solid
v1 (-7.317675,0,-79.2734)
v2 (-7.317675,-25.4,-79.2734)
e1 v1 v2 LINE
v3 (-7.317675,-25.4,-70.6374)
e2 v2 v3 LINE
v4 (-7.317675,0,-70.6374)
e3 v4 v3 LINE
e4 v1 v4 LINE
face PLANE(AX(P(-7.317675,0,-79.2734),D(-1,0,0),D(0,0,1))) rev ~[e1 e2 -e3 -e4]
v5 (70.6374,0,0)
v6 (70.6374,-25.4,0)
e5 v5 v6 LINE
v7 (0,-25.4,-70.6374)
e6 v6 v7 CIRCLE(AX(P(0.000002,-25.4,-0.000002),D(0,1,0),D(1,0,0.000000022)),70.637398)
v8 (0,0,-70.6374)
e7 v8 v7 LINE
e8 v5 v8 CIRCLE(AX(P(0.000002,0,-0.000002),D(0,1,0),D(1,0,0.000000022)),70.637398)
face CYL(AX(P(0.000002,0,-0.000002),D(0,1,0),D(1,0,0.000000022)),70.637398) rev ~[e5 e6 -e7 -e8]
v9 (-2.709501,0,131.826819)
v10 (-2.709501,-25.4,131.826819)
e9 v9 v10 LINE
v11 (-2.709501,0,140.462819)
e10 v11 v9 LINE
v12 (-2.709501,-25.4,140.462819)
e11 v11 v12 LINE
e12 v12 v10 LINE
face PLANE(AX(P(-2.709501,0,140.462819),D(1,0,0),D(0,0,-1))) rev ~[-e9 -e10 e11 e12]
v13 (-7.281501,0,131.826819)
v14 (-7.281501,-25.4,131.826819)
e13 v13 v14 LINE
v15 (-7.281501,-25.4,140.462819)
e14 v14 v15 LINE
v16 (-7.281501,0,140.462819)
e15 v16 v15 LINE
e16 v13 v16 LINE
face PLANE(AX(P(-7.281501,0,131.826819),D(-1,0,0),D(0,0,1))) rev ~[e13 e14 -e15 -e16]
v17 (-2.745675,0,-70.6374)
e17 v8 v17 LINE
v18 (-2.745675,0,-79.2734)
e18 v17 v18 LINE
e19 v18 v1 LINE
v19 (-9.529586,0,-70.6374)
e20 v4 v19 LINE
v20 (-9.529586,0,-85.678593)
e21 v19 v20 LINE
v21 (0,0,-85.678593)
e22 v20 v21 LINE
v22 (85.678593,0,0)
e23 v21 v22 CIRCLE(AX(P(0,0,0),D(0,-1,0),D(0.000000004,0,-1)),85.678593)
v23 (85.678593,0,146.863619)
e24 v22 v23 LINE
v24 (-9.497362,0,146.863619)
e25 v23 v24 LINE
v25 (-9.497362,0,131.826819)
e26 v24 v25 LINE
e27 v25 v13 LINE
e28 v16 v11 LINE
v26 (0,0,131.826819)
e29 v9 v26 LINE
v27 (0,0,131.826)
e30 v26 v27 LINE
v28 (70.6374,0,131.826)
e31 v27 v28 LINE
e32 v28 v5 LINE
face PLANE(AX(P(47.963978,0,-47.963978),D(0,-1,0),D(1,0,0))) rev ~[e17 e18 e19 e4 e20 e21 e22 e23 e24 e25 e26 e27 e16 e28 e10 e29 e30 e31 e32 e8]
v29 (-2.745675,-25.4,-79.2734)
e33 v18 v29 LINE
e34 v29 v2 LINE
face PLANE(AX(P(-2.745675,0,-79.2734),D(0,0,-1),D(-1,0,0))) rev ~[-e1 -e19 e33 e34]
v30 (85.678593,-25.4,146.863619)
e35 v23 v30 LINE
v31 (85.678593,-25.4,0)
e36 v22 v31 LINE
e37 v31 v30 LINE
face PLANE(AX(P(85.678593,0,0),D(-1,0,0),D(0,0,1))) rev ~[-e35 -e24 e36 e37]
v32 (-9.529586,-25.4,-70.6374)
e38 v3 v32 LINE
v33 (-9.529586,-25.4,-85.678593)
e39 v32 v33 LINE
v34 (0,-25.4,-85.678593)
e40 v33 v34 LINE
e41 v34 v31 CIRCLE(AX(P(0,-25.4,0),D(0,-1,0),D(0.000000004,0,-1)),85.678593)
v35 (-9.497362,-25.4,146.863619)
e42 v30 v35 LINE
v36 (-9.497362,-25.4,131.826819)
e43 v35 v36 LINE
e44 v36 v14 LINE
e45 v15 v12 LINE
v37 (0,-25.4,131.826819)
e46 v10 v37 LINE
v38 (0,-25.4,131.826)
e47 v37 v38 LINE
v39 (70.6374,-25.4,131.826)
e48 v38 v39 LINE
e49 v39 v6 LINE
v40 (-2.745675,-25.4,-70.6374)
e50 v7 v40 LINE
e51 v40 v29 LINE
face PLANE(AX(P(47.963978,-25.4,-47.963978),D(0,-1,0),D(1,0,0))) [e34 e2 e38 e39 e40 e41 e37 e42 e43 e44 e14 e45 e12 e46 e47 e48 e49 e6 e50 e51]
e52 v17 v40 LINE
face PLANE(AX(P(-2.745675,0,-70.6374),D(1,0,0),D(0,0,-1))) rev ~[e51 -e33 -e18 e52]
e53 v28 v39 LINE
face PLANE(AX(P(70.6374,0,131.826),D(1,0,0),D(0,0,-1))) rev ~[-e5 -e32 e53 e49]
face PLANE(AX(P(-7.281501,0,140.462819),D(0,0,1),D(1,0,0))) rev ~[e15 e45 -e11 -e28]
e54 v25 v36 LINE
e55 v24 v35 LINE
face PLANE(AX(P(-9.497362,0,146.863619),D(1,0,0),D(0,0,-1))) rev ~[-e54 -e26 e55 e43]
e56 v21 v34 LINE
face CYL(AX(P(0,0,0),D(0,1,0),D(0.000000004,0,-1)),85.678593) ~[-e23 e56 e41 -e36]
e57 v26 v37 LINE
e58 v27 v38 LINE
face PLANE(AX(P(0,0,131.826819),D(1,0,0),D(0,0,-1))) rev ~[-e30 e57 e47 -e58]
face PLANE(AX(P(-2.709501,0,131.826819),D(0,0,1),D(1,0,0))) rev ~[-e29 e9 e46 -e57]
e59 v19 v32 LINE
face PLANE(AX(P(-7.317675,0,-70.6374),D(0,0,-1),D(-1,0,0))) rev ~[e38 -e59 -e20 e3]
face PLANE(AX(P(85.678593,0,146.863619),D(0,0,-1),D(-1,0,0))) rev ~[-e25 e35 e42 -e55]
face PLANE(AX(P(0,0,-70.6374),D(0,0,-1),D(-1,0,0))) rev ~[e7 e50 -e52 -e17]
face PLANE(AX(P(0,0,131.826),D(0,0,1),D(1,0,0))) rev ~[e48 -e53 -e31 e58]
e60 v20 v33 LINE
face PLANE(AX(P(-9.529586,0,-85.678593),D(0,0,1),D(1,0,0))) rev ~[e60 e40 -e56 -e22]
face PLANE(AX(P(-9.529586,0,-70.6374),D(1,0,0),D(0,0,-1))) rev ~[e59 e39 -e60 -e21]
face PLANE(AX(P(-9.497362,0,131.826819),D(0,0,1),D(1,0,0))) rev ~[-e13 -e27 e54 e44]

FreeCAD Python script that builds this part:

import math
import FreeCAD as App
import Part
import Sketcher

V = App.Vector
Q = App.Units.Quantity

doc = App.newDocument("Part")
params = doc.addObject("Spreadsheet::Sheet", "Params")
for row, (alias, value) in enumerate([
    ("sketch1_radius", "2.7809999 in"),
    ("sketch1_width", "0.18 in"),
    ("sketch1_height", "0.34 in"),
    ("sketch1_height2", "5.19 in"),
    ("sketch1_height3", "0.592 in"),
    ("pad1_length", "1 in"),
], start=1):
    params.set(f"A{row}", alias)
    params.set(f"B{row}", "=" + value)
    params.setAlias(f"B{row}", alias)

body = doc.addObject("PartDesign::Body", "Body")

# Sketch on XZ plane
sketch1 = doc.addObject("Sketcher::SketchObject", "Sketch")
body.addObject(sketch1)
sketch1.AttachmentSupport = (doc.XZ_Plane, [""])
sketch1.MapMode = "FlatFace"
sketch1.addGeometry([
    Part.ArcOfCircle(Part.Circle(V(0, 0, 0), V(0, 0, 1), 85.6786), math.radians(-90), math.radians(0)),  # 0
    Part.LineSegment(V(85.6786, 0, 0), V(85.6786, 146.8636, 0)),  # 1
    Part.LineSegment(V(85.6786, 146.8636, 0), V(-9.4974, 146.8636, 0)),  # 2
    Part.LineSegment(V(-9.4974, 146.8636, 0), V(-9.4974, 131.8268, 0)),  # 3
    Part.LineSegment(V(-9.4974, 131.8268, 0), V(-7.2815, 131.8268, 0)),  # 4
    Part.LineSegment(V(-7.2815, 131.8268, 0), V(-7.2815, 140.4628, 0)),  # 5
    Part.LineSegment(V(-7.2815, 140.4628, 0), V(-2.7095, 140.4628, 0)),  # 6
    Part.LineSegment(V(-2.7095, 140.4628, 0), V(-2.7095, 131.8268, 0)),  # 7
    Part.LineSegment(V(-2.7095, 131.8268, 0), V(0, 131.8268, 0)),  # 8
    Part.LineSegment(V(0, 131.8268, 0), V(0, 131.826, 0)),  # 9
    Part.LineSegment(V(0, 131.826, 0), V(70.6374, 131.826, 0)),  # 10
    Part.LineSegment(V(70.6374, 131.826, 0), V(70.6374, 0, 0)),  # 11
    Part.ArcOfCircle(Part.Circle(V(0, 0, 0), V(0, 0, 1), 70.6374), math.radians(-90), math.radians(0)),  # 12
    Part.LineSegment(V(0, -70.6374, 0), V(-2.7457, -70.6374, 0)),  # 13
    Part.LineSegment(V(-2.7457, -70.6374, 0), V(-2.7457, -79.2734, 0)),  # 14
    Part.LineSegment(V(-2.7457, -79.2734, 0), V(-7.3177, -79.2734, 0)),  # 15
    Part.LineSegment(V(-7.3177, -79.2734, 0), V(-7.3177, -70.6374, 0)),  # 16
    Part.LineSegment(V(-7.3177, -70.6374, 0), V(-9.5296, -70.6374, 0)),  # 17
    Part.LineSegment(V(-9.5296, -70.6374, 0), V(-9.5296, -85.6786, 0)),  # 18
    Part.LineSegment(V(-9.5296, -85.6786, 0), V(0, -85.6786, 0)),  # 19
], False)
sketch1.addConstraint([
    Sketcher.Constraint("Tangent", 0, 2, 1, 1),
    Sketcher.Constraint("Coincident", 1, 2, 2, 1),
    Sketcher.Constraint("Coincident", 2, 2, 3, 1),
    Sketcher.Constraint("Coincident", 3, 2, 4, 1),
    Sketcher.Constraint("Coincident", 4, 2, 5, 1),
    Sketcher.Constraint("Coincident", 5, 2, 6, 1),
    Sketcher.Constraint("Coincident", 6, 2, 7, 1),
    Sketcher.Constraint("Coincident", 7, 2, 8, 1),
    Sketcher.Constraint("Coincident", 8, 2, 9, 1),
    Sketcher.Constraint("Coincident", 9, 2, 10, 1),
    Sketcher.Constraint("Coincident", 10, 2, 11, 1),
    Sketcher.Constraint("Tangent", 11, 2, 12, 2),
    Sketcher.Constraint("Tangent", 12, 1, 13, 1),
    Sketcher.Constraint("Coincident", 13, 2, 14, 1),
    Sketcher.Constraint("Coincident", 14, 2, 15, 1),
    Sketcher.Constraint("Coincident", 15, 2, 16, 1),
    Sketcher.Constraint("Coincident", 16, 2, 17, 1),
    Sketcher.Constraint("Coincident", 17, 2, 18, 1),
    Sketcher.Constraint("Coincident", 18, 2, 19, 1),
    Sketcher.Constraint("Tangent", 19, 2, 0, 1),
    Sketcher.Constraint("Vertical", 1),
    Sketcher.Constraint("Horizontal", 2),
    Sketcher.Constraint("Vertical", 3),
    Sketcher.Constraint("Horizontal", 4),
    Sketcher.Constraint("Vertical", 5),
    Sketcher.Constraint("Horizontal", 6),
    Sketcher.Constraint("Vertical", 7),
    Sketcher.Constraint("Horizontal", 8),
    Sketcher.Constraint("Vertical", 9),
    Sketcher.Constraint("Horizontal", 10),
    Sketcher.Constraint("Vertical", 11),
    Sketcher.Constraint("Horizontal", 13),
    Sketcher.Constraint("Vertical", 14),
    Sketcher.Constraint("Horizontal", 15),
    Sketcher.Constraint("Vertical", 16),
    Sketcher.Constraint("Horizontal", 17),
    Sketcher.Constraint("Vertical", 18),
    Sketcher.Constraint("Horizontal", 19),
    Sketcher.Constraint("Coincident", 0, 3, -1, 1),
    Sketcher.Constraint("Coincident", 12, 3, -1, 1),
    Sketcher.Constraint("PointOnObject", 8, 2, -2),
    Sketcher.Constraint("Horizontal", 4, 2, 7, 2),
    Sketcher.Constraint("Horizontal", 13, 2, 16, 2),
    Sketcher.Constraint("Equal", 6, 15),
    Sketcher.Constraint("Equal", 7, 14),
    Sketcher.Constraint("Radius", 12, Q("2.7809999 in")),
    Sketcher.Constraint("DistanceX", 6, 1, 6, 2, Q("0.18 in")),
    Sketcher.Constraint("DistanceY", 5, 1, 5, 2, Q("0.34 in")),
    Sketcher.Constraint("DistanceY", 11, 2, 11, 1, Q("5.19 in")),
    Sketcher.Constraint("DistanceY", 3, 2, 3, 1, Q("0.592 in")),
    Sketcher.Constraint("DistanceX", 8, 1, 8, 2, Q("2.709501 mm")),
    Sketcher.Constraint("Radius", 0, Q("85.678593 mm")),
    Sketcher.Constraint("DistanceX", 4, 1, 4, 2, Q("2.215861 mm")),
    Sketcher.Constraint("DistanceX", 17, 2, 17, 1, Q("2.211911 mm")),
    Sketcher.Constraint("DistanceY", 1, 1, 1, 2, Q("146.863619 mm")),
    Sketcher.Constraint("DistanceX", 13, 2, 13, 1, Q("2.745675 mm")),
])
sketch1.setExpression("Constraints[45]", "Params.sketch1_radius")
sketch1.setExpression("Constraints[46]", "Params.sketch1_width")
sketch1.setExpression("Constraints[47]", "Params.sketch1_height")
sketch1.setExpression("Constraints[48]", "Params.sketch1_height2")
sketch1.setExpression("Constraints[49]", "Params.sketch1_height3")
pad1 = doc.addObject("PartDesign::Pad", "Pad")
body.addObject(pad1)
pad1.Profile = sketch1
pad1.setExpression("Length", "Params.pad1_length")

doc.recompute()
